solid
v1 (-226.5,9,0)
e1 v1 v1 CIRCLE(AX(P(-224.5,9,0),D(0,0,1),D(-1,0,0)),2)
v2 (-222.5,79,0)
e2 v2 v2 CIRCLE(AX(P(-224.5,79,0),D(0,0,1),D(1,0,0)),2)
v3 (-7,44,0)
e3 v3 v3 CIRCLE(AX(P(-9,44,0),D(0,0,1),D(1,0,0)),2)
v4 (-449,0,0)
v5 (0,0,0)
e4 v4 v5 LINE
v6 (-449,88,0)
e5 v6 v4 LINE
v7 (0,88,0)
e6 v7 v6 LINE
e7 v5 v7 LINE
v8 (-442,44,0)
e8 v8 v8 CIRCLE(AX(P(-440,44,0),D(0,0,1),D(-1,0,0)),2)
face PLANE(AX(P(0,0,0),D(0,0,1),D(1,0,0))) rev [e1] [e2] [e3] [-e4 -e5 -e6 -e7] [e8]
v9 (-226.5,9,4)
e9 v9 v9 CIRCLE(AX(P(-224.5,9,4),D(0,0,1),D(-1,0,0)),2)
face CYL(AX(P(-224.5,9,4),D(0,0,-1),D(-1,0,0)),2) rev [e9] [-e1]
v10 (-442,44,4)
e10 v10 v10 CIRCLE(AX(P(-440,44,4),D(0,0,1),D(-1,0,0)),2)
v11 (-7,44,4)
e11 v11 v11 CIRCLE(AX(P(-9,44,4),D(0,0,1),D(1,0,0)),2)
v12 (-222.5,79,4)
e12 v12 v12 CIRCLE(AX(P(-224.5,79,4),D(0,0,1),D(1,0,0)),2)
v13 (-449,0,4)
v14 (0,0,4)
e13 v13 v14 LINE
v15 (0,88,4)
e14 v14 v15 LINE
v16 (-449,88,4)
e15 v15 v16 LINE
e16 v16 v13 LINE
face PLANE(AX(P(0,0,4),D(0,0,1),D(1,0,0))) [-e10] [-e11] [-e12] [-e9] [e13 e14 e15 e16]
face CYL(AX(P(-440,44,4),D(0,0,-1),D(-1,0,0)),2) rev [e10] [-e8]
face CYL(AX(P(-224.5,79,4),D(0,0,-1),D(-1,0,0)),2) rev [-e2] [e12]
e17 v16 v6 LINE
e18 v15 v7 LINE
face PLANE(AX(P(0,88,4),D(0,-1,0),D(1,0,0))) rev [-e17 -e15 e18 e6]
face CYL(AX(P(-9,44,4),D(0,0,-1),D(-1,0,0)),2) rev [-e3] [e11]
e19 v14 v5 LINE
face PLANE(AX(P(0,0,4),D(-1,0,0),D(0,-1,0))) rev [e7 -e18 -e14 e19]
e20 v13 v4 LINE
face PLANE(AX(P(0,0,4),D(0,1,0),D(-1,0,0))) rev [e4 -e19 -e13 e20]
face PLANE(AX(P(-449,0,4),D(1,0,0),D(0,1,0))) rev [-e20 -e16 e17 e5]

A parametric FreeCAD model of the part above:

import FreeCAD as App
import Part
import Sketcher

V = App.Vector

doc = App.newDocument("Part")
body = doc.addObject("PartDesign::Body", "Body")

sketch1 = body.newObject("Sketcher::SketchObject", "Sketch")
sketch1.AttachmentSupport = (doc.getObject("XY_Plane"), [""])
sketch1.MapMode = "FlatFace"
sketch1.addGeometry(Part.LineSegment(V(-449, 88, 0), V(-449, 0, 0)), False)
sketch1.addGeometry(Part.LineSegment(V(-449, 0, 0), V(0, 0, 0)), False)
sketch1.addGeometry(Part.LineSegment(V(0, 0, 0), V(0, 88, 0)), False)
sketch1.addGeometry(Part.LineSegment(V(0, 88, 0), V(-449, 88, 0)), False)
sketch1.addGeometry(Part.Circle(V(-224.5, 9, 0), V(0, 0, 1), 2), False)
sketch1.addGeometry(Part.Circle(V(-440, 44, 0), V(0, 0, 1), 2), False)
sketch1.addGeometry(Part.Circle(V(-9, 44, 0), V(0, 0, 1), 2), False)
sketch1.addGeometry(Part.Circle(V(-224.5, 79, 0), V(0, 0, 1), 2), False)
sketch1.addConstraint(Sketcher.Constraint("Coincident", 0, 2, 1, 1))
sketch1.addConstraint(Sketcher.Constraint("Coincident", 1, 2, 2, 1))
sketch1.addConstraint(Sketcher.Constraint("Coincident", 2, 2, 3, 1))
sketch1.addConstraint(Sketcher.Constraint("Coincident", 3, 2, 0, 1))
sketch1.addConstraint(Sketcher.Constraint("Vertical", 0))
sketch1.addConstraint(Sketcher.Constraint("Horizontal", 1))
sketch1.addConstraint(Sketcher.Constraint("Vertical", 2))
sketch1.addConstraint(Sketcher.Constraint("Horizontal", 3))
sketch1.addConstraint(Sketcher.Constraint("Coincident", 1, 2, -1, 1))
sketch1.addConstraint(Sketcher.Constraint("Equal", 4, 5))
sketch1.addConstraint(Sketcher.Constraint("Equal", 5, 6))
sketch1.addConstraint(Sketcher.Constraint("Equal", 6, 7))
sketch1.addConstraint(Sketcher.Constraint("Horizontal", 5, 3, 6, 3))
sketch1.addConstraint(Sketcher.Constraint("Vertical", 4, 3, 7, 3))
sketch1.addConstraint(Sketcher.Constraint("Diameter", 4, 4.0))
sketch1.addConstraint(Sketcher.Constraint("DistanceX", 1, 1, 1, 2, 449.0))
sketch1.addConstraint(Sketcher.Constraint("DistanceY", 0, 2, 0, 1, 88.0))
sketch1.addConstraint(Sketcher.Constraint("DistanceY", -1, 1, 4, 3, 9.0))
sketch1.addConstraint(Sketcher.Constraint("DistanceX", 5, 3, -1, 1, 440.0))
sketch1.addConstraint(Sketcher.Constraint("DistanceY", -1, 1, 5, 3, 44.0))
sketch1.addConstraint(Sketcher.Constraint("DistanceX", 6, 3, -1, 1, 9.0))
sketch1.addConstraint(Sketcher.Constraint("DistanceY", -1, 1, 7, 3, 79.0))
sketch1.addConstraint(Sketcher.Constraint("DistanceX", 4, 3, -1, 1, 224.5))
pad1 = body.newObject("PartDesign::Pad", "Pad")
pad1.Profile = sketch1
pad1.Length = 4

doc.recompute()
